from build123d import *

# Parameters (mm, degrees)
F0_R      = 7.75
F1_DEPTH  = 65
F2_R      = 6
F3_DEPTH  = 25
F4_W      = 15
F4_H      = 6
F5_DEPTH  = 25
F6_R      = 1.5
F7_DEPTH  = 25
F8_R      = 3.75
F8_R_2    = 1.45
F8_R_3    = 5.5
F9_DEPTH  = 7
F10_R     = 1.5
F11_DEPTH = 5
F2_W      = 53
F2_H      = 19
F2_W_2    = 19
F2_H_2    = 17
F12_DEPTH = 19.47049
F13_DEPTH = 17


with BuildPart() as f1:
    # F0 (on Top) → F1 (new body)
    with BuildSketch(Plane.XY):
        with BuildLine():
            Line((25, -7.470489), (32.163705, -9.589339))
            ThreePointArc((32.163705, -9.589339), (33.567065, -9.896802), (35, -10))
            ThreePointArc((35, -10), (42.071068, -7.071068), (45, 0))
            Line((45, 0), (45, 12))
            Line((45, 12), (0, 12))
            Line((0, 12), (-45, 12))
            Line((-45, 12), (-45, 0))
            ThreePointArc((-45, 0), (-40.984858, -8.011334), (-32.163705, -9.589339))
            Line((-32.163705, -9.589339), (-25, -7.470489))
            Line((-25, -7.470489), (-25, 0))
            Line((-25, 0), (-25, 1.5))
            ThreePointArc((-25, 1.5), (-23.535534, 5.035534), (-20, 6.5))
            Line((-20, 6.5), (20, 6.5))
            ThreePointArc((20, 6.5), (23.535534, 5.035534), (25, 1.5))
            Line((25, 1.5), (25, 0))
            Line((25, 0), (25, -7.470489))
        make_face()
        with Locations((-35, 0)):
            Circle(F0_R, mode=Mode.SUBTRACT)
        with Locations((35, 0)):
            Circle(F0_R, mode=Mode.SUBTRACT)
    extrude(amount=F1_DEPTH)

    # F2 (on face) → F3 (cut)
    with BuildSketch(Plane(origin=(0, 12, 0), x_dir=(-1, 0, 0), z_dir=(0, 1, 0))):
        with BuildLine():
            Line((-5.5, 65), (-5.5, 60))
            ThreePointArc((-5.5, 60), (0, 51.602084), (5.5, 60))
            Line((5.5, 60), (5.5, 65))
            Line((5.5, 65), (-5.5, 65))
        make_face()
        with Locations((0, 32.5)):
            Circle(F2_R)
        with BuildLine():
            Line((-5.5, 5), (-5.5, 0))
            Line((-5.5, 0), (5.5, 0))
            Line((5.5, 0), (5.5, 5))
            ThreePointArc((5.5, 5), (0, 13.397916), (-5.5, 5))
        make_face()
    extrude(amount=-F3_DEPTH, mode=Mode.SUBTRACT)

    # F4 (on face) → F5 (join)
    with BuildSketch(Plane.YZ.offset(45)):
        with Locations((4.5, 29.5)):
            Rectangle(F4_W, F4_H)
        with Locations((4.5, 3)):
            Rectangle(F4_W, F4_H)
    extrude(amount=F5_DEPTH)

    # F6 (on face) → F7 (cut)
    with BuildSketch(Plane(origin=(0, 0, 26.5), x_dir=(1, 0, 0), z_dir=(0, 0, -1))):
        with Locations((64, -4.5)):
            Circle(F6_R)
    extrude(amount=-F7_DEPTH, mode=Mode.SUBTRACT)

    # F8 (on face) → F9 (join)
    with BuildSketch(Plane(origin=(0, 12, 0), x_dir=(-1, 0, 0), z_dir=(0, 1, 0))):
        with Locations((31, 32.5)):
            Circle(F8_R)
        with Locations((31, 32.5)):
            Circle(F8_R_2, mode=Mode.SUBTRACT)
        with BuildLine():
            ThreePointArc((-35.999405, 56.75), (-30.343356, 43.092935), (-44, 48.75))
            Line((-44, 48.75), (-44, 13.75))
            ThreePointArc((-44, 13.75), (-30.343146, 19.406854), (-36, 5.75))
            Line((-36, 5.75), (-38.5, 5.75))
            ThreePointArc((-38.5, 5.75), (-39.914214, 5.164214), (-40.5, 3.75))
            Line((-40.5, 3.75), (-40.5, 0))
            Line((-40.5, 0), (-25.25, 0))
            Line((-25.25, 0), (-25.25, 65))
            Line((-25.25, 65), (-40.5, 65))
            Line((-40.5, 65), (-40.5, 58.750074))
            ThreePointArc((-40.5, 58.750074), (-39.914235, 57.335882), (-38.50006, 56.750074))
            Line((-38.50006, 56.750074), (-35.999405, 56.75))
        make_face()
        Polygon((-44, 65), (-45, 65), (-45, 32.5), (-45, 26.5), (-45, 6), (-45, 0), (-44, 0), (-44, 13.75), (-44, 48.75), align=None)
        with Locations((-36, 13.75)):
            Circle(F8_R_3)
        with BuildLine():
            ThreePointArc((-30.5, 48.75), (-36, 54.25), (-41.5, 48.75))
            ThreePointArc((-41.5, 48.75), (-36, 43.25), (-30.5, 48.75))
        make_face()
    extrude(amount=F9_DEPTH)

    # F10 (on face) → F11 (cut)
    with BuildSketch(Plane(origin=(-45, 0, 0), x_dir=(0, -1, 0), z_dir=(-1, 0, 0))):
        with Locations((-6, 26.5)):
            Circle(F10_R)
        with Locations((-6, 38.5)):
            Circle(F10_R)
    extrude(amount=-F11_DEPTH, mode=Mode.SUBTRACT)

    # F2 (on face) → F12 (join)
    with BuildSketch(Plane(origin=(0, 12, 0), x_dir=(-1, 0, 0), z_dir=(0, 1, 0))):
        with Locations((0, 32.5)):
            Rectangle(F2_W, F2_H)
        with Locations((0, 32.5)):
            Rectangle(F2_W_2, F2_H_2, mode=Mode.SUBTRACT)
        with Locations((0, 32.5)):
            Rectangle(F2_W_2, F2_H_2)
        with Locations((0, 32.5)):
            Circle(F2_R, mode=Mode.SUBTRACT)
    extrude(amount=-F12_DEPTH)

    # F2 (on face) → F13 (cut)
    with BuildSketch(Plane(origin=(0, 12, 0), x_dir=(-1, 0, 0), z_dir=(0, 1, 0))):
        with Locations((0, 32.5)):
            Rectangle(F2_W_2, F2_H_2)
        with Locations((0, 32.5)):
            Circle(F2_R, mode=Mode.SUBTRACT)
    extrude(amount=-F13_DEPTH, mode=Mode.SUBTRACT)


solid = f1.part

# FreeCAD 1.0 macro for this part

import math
import FreeCAD as App
import Part
import Sketcher
Q = App.Units.Quantity

doc = App.newDocument("Part")
body = doc.addObject("PartDesign::Body", "Body")

# Sketch on XY plane
sketch1 = body.newObject("Sketcher::SketchObject", "Sketch")
sketch1.AttachmentSupport = (doc.getObject("XY_Plane"), [""])
sketch1.MapMode = "FlatFace"
sketch1.addGeometry([
    Part.LineSegment(App.Vector(25, -7.5, 0), App.Vector(32.2, -9.6, 0)),  # 0
    Part.ArcOfCircle(Part.Circle(App.Vector(35, 0, 0), App.Vector(0, 0, 1), 10), math.radians(-106.48), math.radians(-90)),  # 1
    Part.ArcOfCircle(Part.Circle(App.Vector(35, 0, 0), App.Vector(0, 0, 1), 10), math.radians(-90), math.radians(0)),  # 2
    Part.LineSegment(App.Vector(45, 0, 0), App.Vector(45, 12, 0)),  # 3
    Part.LineSegment(App.Vector(45, 12, 0), App.Vector(-45, 12, 0)),  # 4
    Part.LineSegment(App.Vector(-45, 12, 0), App.Vector(-45, 0, 0)),  # 5
    Part.ArcOfCircle(Part.Circle(App.Vector(-35, 0, 0), App.Vector(0, 0, 1), 10), math.radians(180), math.radians(286)),  # 6
    Part.LineSegment(App.Vector(-32.2, -9.6, 0), App.Vector(-25, -7.5, 0)),  # 7
    Part.LineSegment(App.Vector(-25, -7.5, 0), App.Vector(-25, 1.5, 0)),  # 8
    Part.ArcOfCircle(Part.Circle(App.Vector(-20, 1.5, 0), App.Vector(0, 0, 1), 5), math.radians(90), math.radians(180)),  # 9
    Part.LineSegment(App.Vector(-20, 6.5, 0), App.Vector(20, 6.5, 0)),  # 10
    Part.ArcOfCircle(Part.Circle(App.Vector(20, 1.5, 0), App.Vector(0, 0, 1), 5), math.radians(0), math.radians(90)),  # 11
    Part.LineSegment(App.Vector(25, 1.5, 0), App.Vector(25, -7.5, 0)),  # 12
    Part.Circle(App.Vector(-35, 0, 0), App.Vector(0, 0, 1), 7.8),  # 13
    Part.Circle(App.Vector(35, 0, 0), App.Vector(0, 0, 1), 7.8),  # 14
], False)
sketch1.addConstraint([
    Sketcher.Constraint("Tangent", 0, 2, 1, 1),
    Sketcher.Constraint("Tangent", 1, 2, 2, 1),
    Sketcher.Constraint("Tangent", 2, 2, 3, 1),
    Sketcher.Constraint("Coincident", 3, 2, 4, 1),
    Sketcher.Constraint("Coincident", 4, 2, 5, 1),
    Sketcher.Constraint("Tangent", 5, 2, 6, 1),
    Sketcher.Constraint("Tangent", 6, 2, 7, 1),
    Sketcher.Constraint("Coincident", 7, 2, 8, 1),
    Sketcher.Constraint("Tangent", 8, 2, 9, 2),
    Sketcher.Constraint("Tangent", 9, 1, 10, 1),
    Sketcher.Constraint("Tangent", 10, 2, 11, 2),
    Sketcher.Constraint("Tangent", 11, 1, 12, 1),
    Sketcher.Constraint("Coincident", 12, 2, 0, 1),
    Sketcher.Constraint("Vertical", 3),
    Sketcher.Constraint("Horizontal", 4),
    Sketcher.Constraint("Vertical", 5),
    Sketcher.Constraint("Vertical", 8),
    Sketcher.Constraint("Horizontal", 10),
    Sketcher.Constraint("Vertical", 12),
    Sketcher.Constraint("Coincident", 13, 3, 6, 3),
    Sketcher.Constraint("Coincident", 14, 3, 2, 3),
    Sketcher.Constraint("Equal", 2, 6),
    Sketcher.Constraint("Equal", 9, 11),
    Sketcher.Constraint("Equal", 13, 14),
    Sketcher.Constraint("Symmetric", 2, 3, 6, 3, -1, 1),
    Sketcher.Constraint("Symmetric", 0, 2, 6, 2, -2),
    Sketcher.Constraint("Symmetric", 7, 2, 12, 2, -2),
    Sketcher.Constraint("Vertical", 14, 3, 1, 2),
    Sketcher.Constraint("Radius", 2, Q("9.999999 mm")),
    Sketcher.Constraint("Radius", 9, Q("5 mm")),
    Sketcher.Constraint("Diameter", 13, Q("15.5 mm")),
    Sketcher.Constraint("DistanceX", 4, 2, 4, 1, Q("90 mm")),
    Sketcher.Constraint("DistanceX", 10, 1, 10, 2, Q("40 mm")),
    Sketcher.Constraint("DistanceY", 3, 1, 3, 2, Q("12 mm")),
    Sketcher.Constraint("DistanceY", -1, 1, 9, 3, Q("1.5 mm")),
    Sketcher.Constraint("DistanceY", 8, 1, 8, 2, Q("8.970489 mm")),
])
pad1 = body.newObject("PartDesign::Pad", "Pad")
pad1.Profile = sketch1
pad1.Length = 65

# Sketch on XZ plane
sketch2 = body.newObject("Sketcher::SketchObject", "Sketch001")
sketch2.AttachmentSupport = (doc.getObject("XZ_Plane"), [""])
sketch2.MapMode = "FlatFace"
sketch2.AttachmentOffset = App.Placement(App.Vector(0, 0, -12), App.Rotation())
sketch2.addGeometry([
    Part.LineSegment(App.Vector(6, 65, 0), App.Vector(6, 60, 0)),  # 0
    Part.ArcOfCircle(Part.Circle(App.Vector(0, 58, 0), App.Vector(0, 0, 1), 6), math.radians(156), math.radians(384)),  # 1
    Part.LineSegment(App.Vector(-6, 60, 0), App.Vector(-6, 65, 0)),  # 2
    Part.LineSegment(App.Vector(-6, 65, 0), App.Vector(6, 65, 0)),  # 3
    Part.Circle(App.Vector(0, 32, 0), App.Vector(0, 0, 1), 6),  # 4
    Part.LineSegment(App.Vector(6, 5, 0), App.Vector(6, 0, 0)),  # 5
    Part.LineSegment(App.Vector(6, 0, 0), App.Vector(-6, 0, 0)),  # 6
    Part.LineSegment(App.Vector(-6, 0, 0), App.Vector(-6, 5, 0)),  # 7
    Part.ArcOfCircle(Part.Circle(App.Vector(0, 7, 0), App.Vector(0, 0, 1), 6), math.radians(-24), math.radians(204)),  # 8
], False)
sketch2.addConstraint([
    Sketcher.Constraint("Coincident", 0, 2, 1, 2),
    Sketcher.Constraint("Coincident", 1, 1, 2, 1),
    Sketcher.Constraint("Coincident", 2, 2, 3, 1),
    Sketcher.Constraint("Coincident", 3, 2, 0, 1),
    Sketcher.Constraint("Coincident", 5, 2, 6, 1),
    Sketcher.Constraint("Coincident", 6, 2, 7, 1),
    Sketcher.Constraint("Coincident", 7, 2, 8, 2),
    Sketcher.Constraint("Coincident", 8, 1, 5, 1),
    Sketcher.Constraint("Vertical", 0),
    Sketcher.Constraint("Vertical", 2),
    Sketcher.Constraint("Horizontal", 3),
    Sketcher.Constraint("Vertical", 5),
    Sketcher.Constraint("Horizontal", 6),
    Sketcher.Constraint("Vertical", 7),
    Sketcher.Constraint("Equal", 1, 4),
    Sketcher.Constraint("Equal", 4, 8),
    Sketcher.Constraint("Symmetric", 5, 2, 6, 2, -1, 1),
    Sketcher.Constraint("Symmetric", 0, 2, 1, 1, -2),
    Sketcher.Constraint("PointOnObject", 4, 3, -2),
    Sketcher.Constraint("PointOnObject", 8, 3, -2),
    Sketcher.Constraint("Vertical", 3, 2, 5, 2),
    Sketcher.Constraint("Equal", 2, 5),
    Sketcher.Constraint("Diameter", 4, Q("12 mm")),
    Sketcher.Constraint("DistanceX", 3, 1, 3, 2, Q("11 mm")),
    Sketcher.Constraint("DistanceY", 0, 2, 0, 1, Q("5 mm")),
    Sketcher.Constraint("DistanceY", -1, 1, 0, 2, Q("60 mm")),
    Sketcher.Constraint("DistanceY", -1, 1, 4, 3, Q("32.5 mm")),
])
pocket1 = body.newObject("PartDesign::Pocket", "Pocket")
pocket1.Profile = sketch2
pocket1.Length = 25
pocket1.Reversed = True

# Sketch on YZ plane
sketch3 = body.newObject("Sketcher::SketchObject", "Sketch002")
sketch3.AttachmentSupport = (doc.getObject("YZ_Plane"), [""])
sketch3.MapMode = "FlatFace"
sketch3.AttachmentOffset = App.Placement(App.Vector(0, 0, 45), App.Rotation())
sketch3.addGeometry([
    Part.LineSegment(App.Vector(-3, 32, 0), App.Vector(-3, 26, 0)),  # 0
    Part.LineSegment(App.Vector(-3, 26, 0), App.Vector(12, 26, 0)),  # 1
    Part.LineSegment(App.Vector(12, 26, 0), App.Vector(12, 32, 0)),  # 2
    Part.LineSegment(App.Vector(12, 32, 0), App.Vector(-3, 32, 0)),  # 3
    Part.LineSegment(App.Vector(-3, 6, 0), App.Vector(-3, 0, 0)),  # 4
    Part.LineSegment(App.Vector(-3, 0, 0), App.Vector(12, 0, 0)),  # 5
    Part.LineSegment(App.Vector(12, 0, 0), App.Vector(12, 6, 0)),  # 6
    Part.LineSegment(App.Vector(12, 6, 0), App.Vector(-3, 6, 0)),  # 7
], False)
sketch3.addConstraint([
    Sketcher.Constraint("Coincident", 0, 2, 1, 1),
    Sketcher.Constraint("Coincident", 1, 2, 2, 1),
    Sketcher.Constraint("Coincident", 2, 2, 3, 1),
    Sketcher.Constraint("Coincident", 3, 2, 0, 1),
    Sketcher.Constraint("Coincident", 4, 2, 5, 1),
    Sketcher.Constraint("Coincident", 5, 2, 6, 1),
    Sketcher.Constraint("Coincident", 6, 2, 7, 1),
    Sketcher.Constraint("Coincident", 7, 2, 4, 1),
    Sketcher.Constraint("Vertical", 0),
    Sketcher.Constraint("Horizontal", 1),
    Sketcher.Constraint("Vertical", 2),
    Sketcher.Constraint("Horizontal", 3),
    Sketcher.Constraint("Vertical", 4),
    Sketcher.Constraint("Horizontal", 5),
    Sketcher.Constraint("Vertical", 6),
    Sketcher.Constraint("Horizontal", 7),
    Sketcher.Constraint("PointOnObject", 4, 2, -1),
    Sketcher.Constraint("Vertical", 3, 2, 4, 2),
    Sketcher.Constraint("Vertical", 2, 2, 5, 2),
    Sketcher.Constraint("Equal", 2, 4),
    Sketcher.Constraint("DistanceX", 1, 1, 1, 2, Q("15 mm")),
    Sketcher.Constraint("DistanceY", 0, 2, 0, 1, Q("6 mm")),
    Sketcher.Constraint("DistanceX", 0, 2, -1, 1, Q("3 mm")),
    Sketcher.Constraint("DistanceY", -1, 1, 0, 2, Q("26.5 mm")),
])
pad2 = body.newObject("PartDesign::Pad", "Pad001")
pad2.Profile = sketch3
pad2.Length = 25

# Sketch on XY plane
sketch4 = body.newObject("Sketcher::SketchObject", "Sketch003")
sketch4.AttachmentSupport = (doc.getObject("XY_Plane"), [""])
sketch4.MapMode = "FlatFace"
sketch4.AttachmentOffset = App.Placement(App.Vector(0, 0, 26.5), App.Rotation())
sketch4.addGeometry(Part.Circle(App.Vector(64, 4.5, 0), App.Vector(0, 0, 1), 1.5), False)
sketch4.addConstraint([
    Sketcher.Constraint("Diameter", 0, Q("3 mm")),
    Sketcher.Constraint("DistanceX", -1, 1, 0, 3, Q("64 mm")),
    Sketcher.Constraint("DistanceY", -1, 1, 0, 3, Q("4.5 mm")),
])
pocket2 = body.newObject("PartDesign::Pocket", "Pocket001")
pocket2.Profile = sketch4
pocket2.Length = 25
pocket2.Reversed = True

# Sketch on XZ plane
sketch5 = body.newObject("Sketcher::SketchObject", "Sketch004")
sketch5.AttachmentSupport = (doc.getObject("XZ_Plane"), [""])
sketch5.MapMode = "FlatFace"
sketch5.AttachmentOffset = App.Placement(App.Vector(0, 0, -12), App.Rotation())
sketch5.addGeometry([
    Part.Circle(App.Vector(-31, 32.5, 0), App.Vector(0, 0, 1), 3.8),  # 0
    Part.Circle(App.Vector(-31, 32.5, 0), App.Vector(0, 0, 1), 1.4),  # 1
    Part.ArcOfCircle(Part.Circle(App.Vector(36, 48.7, 0), App.Vector(0, 0, 1), 8), math.radians(90), math.radians(360)),  # 2
    Part.LineSegment(App.Vector(44, 48.8, 0), App.Vector(44, 65, 0)),  # 3
    Part.LineSegment(App.Vector(44, 65, 0), App.Vector(45, 65, 0)),  # 4
    Part.LineSegment(App.Vector(45, 65, 0), App.Vector(45, 0, 0)),  # 5
    Part.LineSegment(App.Vector(45, 0, 0), App.Vector(44, 0, 0)),  # 6
    Part.LineSegment(App.Vector(44, 0, 0), App.Vector(44, 13.8, 0)),  # 7
    Part.ArcOfCircle(Part.Circle(App.Vector(36, 13.7, 0), App.Vector(0, 0, 1), 8), math.radians(0), math.radians(270)),  # 8
    Part.LineSegment(App.Vector(36, 5.8, 0), App.Vector(38.5, 5.8, 0)),  # 9
    Part.ArcOfCircle(Part.Circle(App.Vector(38.5, 3.8, 0), App.Vector(0, 0, 1), 2), math.radians(0), math.radians(90)),  # 10
    Part.LineSegment(App.Vector(40.5, 3.8, 0), App.Vector(40.5, 0, 0)),  # 11
    Part.LineSegment(App.Vector(40.5, 0, 0), App.Vector(25.2, 0, 0)),  # 12
    Part.LineSegment(App.Vector(25.2, 0, 0), App.Vector(25.2, 65, 0)),  # 13
    Part.LineSegment(App.Vector(25.2, 65, 0), App.Vector(40.5, 65, 0)),  # 14
    Part.LineSegment(App.Vector(40.5, 65, 0), App.Vector(40.5, 58.8, 0)),  # 15
    Part.ArcOfCircle(Part.Circle(App.Vector(38.5, 58.8, 0), App.Vector(0, 0, 1), 2), math.radians(-90), math.radians(0)),  # 16
    Part.LineSegment(App.Vector(38.5, 56.8, 0), App.Vector(36, 56.8, 0)),  # 17
    Part.Circle(App.Vector(36, 13.8, 0), App.Vector(0, 0, 1), 5.5),  # 18
    Part.Circle(App.Vector(36, 48.8, 0), App.Vector(0, 0, 1), 5.5),  # 19
], False)
sketch5.addConstraint([
    Sketcher.Constraint("Tangent", 2, 2, 3, 1),
    Sketcher.Constraint("Coincident", 3, 2, 4, 1),
    Sketcher.Constraint("Coincident", 4, 2, 5, 1),
    Sketcher.Constraint("Coincident", 5, 2, 6, 1),
    Sketcher.Constraint("Coincident", 6, 2, 7, 1),
    Sketcher.Constraint("Tangent", 7, 2, 8, 1),
    Sketcher.Constraint("Tangent", 8, 2, 9, 1),
    Sketcher.Constraint("Tangent", 9, 2, 10, 2),
    Sketcher.Constraint("Tangent", 10, 1, 11, 1),
    Sketcher.Constraint("Coincident", 11, 2, 12, 1),
    Sketcher.Constraint("Coincident", 12, 2, 13, 1),
    Sketcher.Constraint("Coincident", 13, 2, 14, 1),
    Sketcher.Constraint("Coincident", 14, 2, 15, 1),
    Sketcher.Constraint("Tangent", 15, 2, 16, 2),
    Sketcher.Constraint("Tangent", 16, 1, 17, 1),
    Sketcher.Constraint("Coincident", 17, 2, 2, 1),
    Sketcher.Constraint("Vertical", 3),
    Sketcher.Constraint("Horizontal", 4),
    Sketcher.Constraint("Vertical", 5),
    Sketcher.Constraint("Horizontal", 6),
    Sketcher.Constraint("Vertical", 7),
    Sketcher.Constraint("Horizontal", 9),
    Sketcher.Constraint("Vertical", 11),
    Sketcher.Constraint("Horizontal", 12),
    Sketcher.Constraint("Vertical", 13),
    Sketcher.Constraint("Horizontal", 14),
    Sketcher.Constraint("Vertical", 15),
    Sketcher.Constraint("Coincident", 1, 3, 0, 3),
    Sketcher.Constraint("Coincident", 18, 3, 8, 3),
    Sketcher.Constraint("Coincident", 19, 3, 2, 3),
    Sketcher.Constraint("Equal", 2, 8),
    Sketcher.Constraint("Equal", 10, 16),
    Sketcher.Constraint("Equal", 18, 19),
    Sketcher.Constraint("PointOnObject", 5, 2, -1),
    Sketcher.Constraint("PointOnObject", 11, 2, -1),
    Sketcher.Constraint("Horizontal", 4, 2, 13, 2),
    Sketcher.Constraint("Vertical", 2, 3, 8, 3),
    Sketcher.Constraint("Vertical", 10, 3, 16, 3),
    Sketcher.Constraint("Diameter", 18, Q("11 mm")),
    Sketcher.Constraint("Radius", 2, Q("8 mm")),
    Sketcher.Constraint("Radius", 10, Q("1.999999 mm")),
    Sketcher.Constraint("Diameter", 0, Q("7.5 mm")),
    Sketcher.Constraint("Diameter", 1, Q("2.9 mm")),
    Sketcher.Constraint("DistanceX", 4, 1, 4, 2, Q("1 mm")),
    Sketcher.Constraint("DistanceY", 5, 2, 5, 1, Q("65 mm")),
    Sketcher.Constraint("DistanceX", 9, 1, 9, 2, Q("2.5 mm")),
    Sketcher.Constraint("DistanceX", 0, 3, -1, 1, Q("31 mm")),
    Sketcher.Constraint("DistanceX", -1, 1, 2, 3, Q("36 mm")),
    Sketcher.Constraint("DistanceY", 8, 3, 2, 3, Q("35 mm")),
    Sketcher.Constraint("DistanceX", 12, 2, 12, 1, Q("15.25 mm")),
    Sketcher.Constraint("DistanceY", 3, 1, 3, 2, Q("16.25 mm")),
    Sketcher.Constraint("DistanceY", -1, 1, 0, 3, Q("32.5 mm")),
    Sketcher.Constraint("DistanceY", 15, 2, 15, 1, Q("6.249926 mm")),
    Sketcher.Constraint("Distance", 17, Q("2.500655 mm")),
])
pad3 = body.newObject("PartDesign::Pad", "Pad002")
pad3.Profile = sketch5
pad3.Length = 7
pad3.Reversed = True

# Sketch on YZ plane
sketch6 = body.newObject("Sketcher::SketchObject", "Sketch005")
sketch6.AttachmentSupport = (doc.getObject("YZ_Plane"), [""])
sketch6.MapMode = "FlatFace"
sketch6.AttachmentOffset = App.Placement(App.Vector(0, 0, -45), App.Rotation())
sketch6.addGeometry([
    Part.Circle(App.Vector(6, 26.5, 0), App.Vector(0, 0, 1), 1.5),
    Part.Circle(App.Vector(6, 38.5, 0), App.Vector(0, 0, 1), 1.5),
], False)
sketch6.addConstraint([
    Sketcher.Constraint("Equal", 0, 1),
    Sketcher.Constraint("Vertical", 0, 3, 1, 3),
    Sketcher.Constraint("Diameter", 0, Q("3 mm")),
    Sketcher.Constraint("DistanceX", -1, 1, 0, 3, Q("6 mm")),
    Sketcher.Constraint("DistanceY", 0, 3, 1, 3, Q("12 mm")),
    Sketcher.Constraint("DistanceY", -1, 1, 0, 3, Q("26.5 mm")),
])
pocket3 = body.newObject("PartDesign::Pocket", "Pocket002")
pocket3.Profile = sketch6
pocket3.Length = 5
pocket3.Reversed = True

# Sketch on XZ plane
sketch7 = body.newObject("Sketcher::SketchObject", "Sketch006")
sketch7.AttachmentSupport = (doc.getObject("XZ_Plane"), [""])
sketch7.MapMode = "FlatFace"
sketch7.AttachmentOffset = App.Placement(App.Vector(0, 0, -12), App.Rotation())
sketch7.addGeometry([
    Part.LineSegment(App.Vector(26, 42, 0), App.Vector(26, 23, 0)),  # 0
    Part.LineSegment(App.Vector(26, 23, 0), App.Vector(-26, 23, 0)),  # 1
    Part.LineSegment(App.Vector(-26, 23, 0), App.Vector(-26, 42, 0)),  # 2
    Part.LineSegment(App.Vector(-26, 42, 0), App.Vector(26, 42, 0)),  # 3
    Part.Circle(App.Vector(0, 32, 0), App.Vector(0, 0, 1), 6),  # 4
], False)
sketch7.addConstraint([
    Sketcher.Constraint("Coincident", 0, 2, 1, 1),
    Sketcher.Constraint("Coincident", 1, 2, 2, 1),
    Sketcher.Constraint("Coincident", 2, 2, 3, 1),
    Sketcher.Constraint("Coincident", 3, 2, 0, 1),
    Sketcher.Constraint("Vertical", 0),
    Sketcher.Constraint("Horizontal", 1),
    Sketcher.Constraint("Vertical", 2),
    Sketcher.Constraint("Horizontal", 3),
    Sketcher.Constraint("PointOnObject", 4, 3, -2),
    Sketcher.Constraint("Diameter", 4, Q("12 mm")),
    Sketcher.Constraint("DistanceX", 1, 2, 1, 1, Q("53 mm")),
    Sketcher.Constraint("DistanceY", 0, 2, 0, 1, Q("19 mm")),
    Sketcher.Constraint("DistanceY", -1, 1, 0, 2, Q("23 mm")),
    Sketcher.Constraint("DistanceY", -1, 1, 4, 3, Q("32.5 mm")),
    Sketcher.Constraint("DistanceX", -1, 1, 0, 2, Q("26.5 mm")),
])
pad4 = body.newObject("PartDesign::Pad", "Pad003")
pad4.Profile = sketch7
pad4.Length = 19.47049

# Sketch on XZ plane
sketch8 = body.newObject("Sketcher::SketchObject", "Sketch007")
sketch8.AttachmentSupport = (doc.getObject("XZ_Plane"), [""])
sketch8.MapMode = "FlatFace"
sketch8.AttachmentOffset = App.Placement(App.Vector(0, 0, -12), App.Rotation())
sketch8.addGeometry([
    Part.LineSegment(App.Vector(10, 41, 0), App.Vector(10, 24, 0)),  # 0
    Part.LineSegment(App.Vector(10, 24, 0), App.Vector(-10, 24, 0)),  # 1
    Part.LineSegment(App.Vector(-10, 24, 0), App.Vector(-10, 41, 0)),  # 2
    Part.LineSegment(App.Vector(-10, 41, 0), App.Vector(10, 41, 0)),  # 3
    Part.Circle(App.Vector(0, 32, 0), App.Vector(0, 0, 1), 6),  # 4
], False)
sketch8.addConstraint([
    Sketcher.Constraint("Coincident", 0, 2, 1, 1),
    Sketcher.Constraint("Coincident", 1, 2, 2, 1),
    Sketcher.Constraint("Coincident", 2, 2, 3, 1),
    Sketcher.Constraint("Coincident", 3, 2, 0, 1),
    Sketcher.Constraint("Vertical", 0),
    Sketcher.Constraint("Horizontal", 1),
    Sketcher.Constraint("Vertical", 2),
    Sketcher.Constraint("Horizontal", 3),
    Sketcher.Constraint("PointOnObject", 4, 3, -2),
    Sketcher.Constraint("Diameter", 4, Q("12 mm")),
    Sketcher.Constraint("DistanceX", 1, 2, 1, 1, Q("19 mm")),
    Sketcher.Constraint("DistanceY", 0, 2, 0, 1, Q("17 mm")),
    Sketcher.Constraint("DistanceY", -1, 1, 0, 2, Q("24 mm")),
    Sketcher.Constraint("DistanceY", -1, 1, 4, 3, Q("32.5 mm")),
    Sketcher.Constraint("DistanceX", -1, 1, 0, 2, Q("9.5 mm")),
])
pocket4 = body.newObject("PartDesign::Pocket", "Pocket003")
pocket4.Profile = sketch8
pocket4.Length = 17
pocket4.Reversed = True

doc.recompute()
